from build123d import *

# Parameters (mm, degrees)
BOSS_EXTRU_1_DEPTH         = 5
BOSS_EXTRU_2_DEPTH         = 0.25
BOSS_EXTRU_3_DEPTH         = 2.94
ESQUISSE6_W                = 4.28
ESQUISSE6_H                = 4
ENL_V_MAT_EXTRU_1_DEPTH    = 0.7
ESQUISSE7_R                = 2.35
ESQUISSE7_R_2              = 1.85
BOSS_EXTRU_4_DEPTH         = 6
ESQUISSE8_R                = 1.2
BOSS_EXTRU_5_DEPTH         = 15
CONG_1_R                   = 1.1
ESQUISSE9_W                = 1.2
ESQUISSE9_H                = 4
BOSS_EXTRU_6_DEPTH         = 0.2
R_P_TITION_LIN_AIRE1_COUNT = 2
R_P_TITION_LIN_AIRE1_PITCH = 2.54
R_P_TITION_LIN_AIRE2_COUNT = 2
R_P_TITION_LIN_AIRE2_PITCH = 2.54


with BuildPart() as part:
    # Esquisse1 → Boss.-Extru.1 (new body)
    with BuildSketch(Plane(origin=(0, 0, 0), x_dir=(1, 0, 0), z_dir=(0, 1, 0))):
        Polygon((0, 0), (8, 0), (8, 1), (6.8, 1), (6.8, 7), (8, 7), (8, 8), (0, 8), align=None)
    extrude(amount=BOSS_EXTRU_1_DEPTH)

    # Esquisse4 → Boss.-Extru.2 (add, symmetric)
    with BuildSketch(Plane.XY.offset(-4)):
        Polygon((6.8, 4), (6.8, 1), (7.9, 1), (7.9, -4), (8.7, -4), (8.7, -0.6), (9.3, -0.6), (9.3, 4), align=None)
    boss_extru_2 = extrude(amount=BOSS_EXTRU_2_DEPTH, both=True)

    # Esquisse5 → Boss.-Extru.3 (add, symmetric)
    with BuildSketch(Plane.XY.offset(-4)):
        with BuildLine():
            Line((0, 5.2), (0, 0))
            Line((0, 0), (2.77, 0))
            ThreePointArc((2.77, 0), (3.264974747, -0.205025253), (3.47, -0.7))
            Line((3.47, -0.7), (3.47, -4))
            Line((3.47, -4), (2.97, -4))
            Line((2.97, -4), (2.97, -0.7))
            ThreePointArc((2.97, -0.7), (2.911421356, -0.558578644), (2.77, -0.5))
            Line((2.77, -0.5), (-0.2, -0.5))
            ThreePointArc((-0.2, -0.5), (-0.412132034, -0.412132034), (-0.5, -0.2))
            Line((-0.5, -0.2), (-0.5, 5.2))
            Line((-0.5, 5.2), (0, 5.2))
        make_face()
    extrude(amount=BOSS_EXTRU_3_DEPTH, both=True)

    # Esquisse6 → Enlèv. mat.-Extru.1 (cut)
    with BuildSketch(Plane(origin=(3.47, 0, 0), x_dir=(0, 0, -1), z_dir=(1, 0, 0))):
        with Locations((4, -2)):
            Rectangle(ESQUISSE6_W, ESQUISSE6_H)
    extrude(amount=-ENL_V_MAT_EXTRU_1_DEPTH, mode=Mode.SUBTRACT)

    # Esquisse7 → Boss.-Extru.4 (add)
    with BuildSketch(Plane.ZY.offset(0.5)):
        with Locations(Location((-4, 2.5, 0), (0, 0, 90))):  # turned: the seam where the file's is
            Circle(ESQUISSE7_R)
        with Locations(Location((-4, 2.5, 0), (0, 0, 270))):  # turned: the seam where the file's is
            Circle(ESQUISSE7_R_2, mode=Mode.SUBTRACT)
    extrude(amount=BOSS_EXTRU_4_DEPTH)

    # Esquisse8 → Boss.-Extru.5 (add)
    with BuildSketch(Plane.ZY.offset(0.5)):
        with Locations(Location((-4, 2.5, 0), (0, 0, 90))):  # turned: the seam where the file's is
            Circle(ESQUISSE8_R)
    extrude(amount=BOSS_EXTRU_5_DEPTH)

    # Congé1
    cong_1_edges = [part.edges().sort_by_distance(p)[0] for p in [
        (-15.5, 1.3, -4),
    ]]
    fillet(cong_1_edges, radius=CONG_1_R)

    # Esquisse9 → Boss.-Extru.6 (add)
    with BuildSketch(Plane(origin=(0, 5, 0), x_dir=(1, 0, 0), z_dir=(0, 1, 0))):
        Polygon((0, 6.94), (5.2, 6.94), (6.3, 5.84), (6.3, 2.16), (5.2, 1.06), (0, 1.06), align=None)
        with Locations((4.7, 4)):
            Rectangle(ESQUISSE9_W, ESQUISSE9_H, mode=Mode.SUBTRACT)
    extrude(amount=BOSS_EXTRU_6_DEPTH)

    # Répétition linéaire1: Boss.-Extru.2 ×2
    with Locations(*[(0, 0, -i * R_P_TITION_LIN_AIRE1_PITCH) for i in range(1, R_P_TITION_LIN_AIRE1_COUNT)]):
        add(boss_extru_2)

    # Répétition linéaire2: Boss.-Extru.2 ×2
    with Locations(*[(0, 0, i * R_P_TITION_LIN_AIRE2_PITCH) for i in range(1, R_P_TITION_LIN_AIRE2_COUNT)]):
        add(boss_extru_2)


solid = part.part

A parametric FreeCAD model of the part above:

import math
import FreeCAD as App
import Part
import Sketcher

V = App.Vector
Q = App.Units.Quantity


def edges_at(feature, points):
    """Names of the edges that pass closest to the given points."""
    edges = feature.Shape.Edges
    near = lambda p: min(range(len(edges)), key=lambda i: edges[i].distToShape(Part.Vertex(*p))[0])
    return sorted({f"Edge{near(p) + 1}" for p in points})

doc = App.newDocument("Part")
body = doc.addObject("PartDesign::Body", "Body")

# Sketch on XZ plane
sketch1 = doc.addObject("Sketcher::SketchObject", "Sketch")
body.addObject(sketch1)
sketch1.AttachmentSupport = (doc.XZ_Plane, [""])
sketch1.MapMode = "FlatFace"
sketch1.addGeometry([
    Part.LineSegment(V(0, 0, 0), V(8, 0, 0)),  # 0
    Part.LineSegment(V(8, 0, 0), V(8, -1, 0)),  # 1
    Part.LineSegment(V(8, -1, 0), V(6.8, -1, 0)),  # 2
    Part.LineSegment(V(6.8, -1, 0), V(6.8, -7, 0)),  # 3
    Part.LineSegment(V(6.8, -7, 0), V(8, -7, 0)),  # 4
    Part.LineSegment(V(8, -7, 0), V(8, -8, 0)),  # 5
    Part.LineSegment(V(8, -8, 0), V(0, -8, 0)),  # 6
    Part.LineSegment(V(0, -8, 0), V(0, 0, 0)),  # 7
], False)
sketch1.addConstraint([
    Sketcher.Constraint("Coincident", 0, 2, 1, 1),
    Sketcher.Constraint("Coincident", 1, 2, 2, 1),
    Sketcher.Constraint("Coincident", 2, 2, 3, 1),
    Sketcher.Constraint("Coincident", 3, 2, 4, 1),
    Sketcher.Constraint("Coincident", 4, 2, 5, 1),
    Sketcher.Constraint("Coincident", 5, 2, 6, 1),
    Sketcher.Constraint("Coincident", 6, 2, 7, 1),
    Sketcher.Constraint("Coincident", 7, 2, 0, 1),
    Sketcher.Constraint("Horizontal", 0),
    Sketcher.Constraint("Vertical", 1),
    Sketcher.Constraint("Horizontal", 2),
    Sketcher.Constraint("Vertical", 3),
    Sketcher.Constraint("Horizontal", 4),
    Sketcher.Constraint("Vertical", 5),
    Sketcher.Constraint("Horizontal", 6),
    Sketcher.Constraint("Vertical", 7),
    Sketcher.Constraint("Coincident", 7, 2, -1, 1),
    Sketcher.Constraint("Vertical", 1, 2, 4, 2),
    Sketcher.Constraint("Equal", 1, 5),
    Sketcher.Constraint("Equal", 6, 7),
    Sketcher.Constraint("DistanceX", 0, 1, 0, 2, Q("8 mm")),
    Sketcher.Constraint("DistanceY", 1, 2, 1, 1, Q("1 mm")),
    Sketcher.Constraint("DistanceX", 2, 2, 2, 1, Q("1.2 mm")),
])
pad1 = doc.addObject("PartDesign::Pad", "Pad")
body.addObject(pad1)
pad1.Profile = sketch1
pad1.Length = 5
pad1.Reversed = True

# Sketch on XY plane
sketch2 = doc.addObject("Sketcher::SketchObject", "Sketch001")
body.addObject(sketch2)
sketch2.AttachmentSupport = (doc.XY_Plane, [""])
sketch2.MapMode = "FlatFace"
sketch2.AttachmentOffset = App.Placement(V(0, 0, -4), App.Rotation())
sketch2.addGeometry([
    Part.LineSegment(V(6.8, 4, 0), V(6.8, 1, 0)),  # 0
    Part.LineSegment(V(6.8, 1, 0), V(7.9, 1, 0)),  # 1
    Part.LineSegment(V(7.9, 1, 0), V(7.9, -4, 0)),  # 2
    Part.LineSegment(V(7.9, -4, 0), V(8.7, -4, 0)),  # 3
    Part.LineSegment(V(8.7, -4, 0), V(8.7, -0.6, 0)),  # 4
    Part.LineSegment(V(8.7, -0.6, 0), V(9.3, -0.6, 0)),  # 5
    Part.LineSegment(V(9.3, -0.6, 0), V(9.3, 4, 0)),  # 6
    Part.LineSegment(V(9.3, 4, 0), V(6.8, 4, 0)),  # 7
], False)
sketch2.addConstraint([
    Sketcher.Constraint("Coincident", 0, 2, 1, 1),
    Sketcher.Constraint("Coincident", 1, 2, 2, 1),
    Sketcher.Constraint("Coincident", 2, 2, 3, 1),
    Sketcher.Constraint("Coincident", 3, 2, 4, 1),
    Sketcher.Constraint("Coincident", 4, 2, 5, 1),
    Sketcher.Constraint("Coincident", 5, 2, 6, 1),
    Sketcher.Constraint("Coincident", 6, 2, 7, 1),
    Sketcher.Constraint("Coincident", 7, 2, 0, 1),
    Sketcher.Constraint("Vertical", 0),
    Sketcher.Constraint("Horizontal", 1),
    Sketcher.Constraint("Vertical", 2),
    Sketcher.Constraint("Horizontal", 3),
    Sketcher.Constraint("Vertical", 4),
    Sketcher.Constraint("Horizontal", 5),
    Sketcher.Constraint("Vertical", 6),
    Sketcher.Constraint("Horizontal", 7),
    Sketcher.Constraint("DistanceY", 0, 2, 0, 1, Q("3 mm")),
    Sketcher.Constraint("DistanceY", 2, 2, 2, 1, Q("5 mm")),
    Sketcher.Constraint("DistanceX", 1, 1, 1, 2, Q("1.1 mm")),
    Sketcher.Constraint("DistanceX", 3, 1, 3, 2, Q("0.8 mm")),
    Sketcher.Constraint("DistanceX", 5, 1, 5, 2, Q("0.6 mm")),
    Sketcher.Constraint("DistanceY", 4, 1, 4, 2, Q("3.4 mm")),
    Sketcher.Constraint("DistanceY", -1, 1, 0, 2, Q("1 mm")),
    Sketcher.Constraint("DistanceX", -1, 1, 0, 2, Q("6.8 mm")),
])
pad2 = doc.addObject("PartDesign::Pad", "Pad001")
body.addObject(pad2)
pad2.Profile = sketch2
pad2.Length = 0.5
pad2.Midplane = True

# Sketch on XY plane
sketch3 = doc.addObject("Sketcher::SketchObject", "Sketch002")
body.addObject(sketch3)
sketch3.AttachmentSupport = (doc.XY_Plane, [""])
sketch3.MapMode = "FlatFace"
sketch3.AttachmentOffset = App.Placement(V(0, 0, -4), App.Rotation())
sketch3.addGeometry([
    Part.LineSegment(V(0, 0, 0), V(0, 5.2, 0)),  # 0
    Part.LineSegment(V(0, 5.2, 0), V(-0.5, 5.2, 0)),  # 1
    Part.LineSegment(V(-0.5, 5.2, 0), V(-0.5, -0.2, 0)),  # 2
    Part.ArcOfCircle(Part.Circle(V(-0.2, -0.2, 0), V(0, 0, 1), 0.3), math.radians(-180), math.radians(-90)),  # 3
    Part.LineSegment(V(-0.2, -0.5, 0), V(2.77, -0.5, 0)),  # 4
    Part.ArcOfCircle(Part.Circle(V(2.77, -0.7, 0), V(0, 0, 1), 0.2), math.radians(0), math.radians(90)),  # 5
    Part.LineSegment(V(2.97, -0.7, 0), V(2.97, -4, 0)),  # 6
    Part.LineSegment(V(2.97, -4, 0), V(3.47, -4, 0)),  # 7
    Part.LineSegment(V(3.47, -4, 0), V(3.47, -0.7, 0)),  # 8
    Part.ArcOfCircle(Part.Circle(V(2.77, -0.7, 0), V(0, 0, 1), 0.7), math.radians(0), math.radians(90)),  # 9
    Part.LineSegment(V(2.77, 0, 0), V(0, 0, 0)),  # 10
], False)
sketch3.addConstraint([
    Sketcher.Constraint("Coincident", 0, 2, 1, 1),
    Sketcher.Constraint("Coincident", 1, 2, 2, 1),
    Sketcher.Constraint("Tangent", 2, 2, 3, 1),
    Sketcher.Constraint("Tangent", 3, 2, 4, 1),
    Sketcher.Constraint("Tangent", 4, 2, 5, 2),
    Sketcher.Constraint("Tangent", 5, 1, 6, 1),
    Sketcher.Constraint("Coincident", 6, 2, 7, 1),
    Sketcher.Constraint("Coincident", 7, 2, 8, 1),
    Sketcher.Constraint("Tangent", 8, 2, 9, 1),
    Sketcher.Constraint("Tangent", 9, 2, 10, 1),
    Sketcher.Constraint("Coincident", 10, 2, 0, 1),
    Sketcher.Constraint("Vertical", 0),
    Sketcher.Constraint("Horizontal", 1),
    Sketcher.Constraint("Vertical", 2),
    Sketcher.Constraint("Horizontal", 4),
    Sketcher.Constraint("Vertical", 6),
    Sketcher.Constraint("Horizontal", 7),
    Sketcher.Constraint("Vertical", 8),
    Sketcher.Constraint("Horizontal", 10),
    Sketcher.Constraint("Coincident", 10, 2, -1, 1),
    Sketcher.Constraint("Coincident", 9, 3, 5, 3),
    Sketcher.Constraint("Equal", 1, 7),
    Sketcher.Constraint("Radius", 3, Q("0.3 mm")),
    Sketcher.Constraint("Radius", 5, Q("0.2 mm")),
    Sketcher.Constraint("Radius", 9, Q("0.7 mm")),
    Sketcher.Constraint("DistanceY", 0, 1, 0, 2, Q("5.2 mm")),
    Sketcher.Constraint("DistanceY", 6, 2, 6, 1, Q("3.3 mm")),
    Sketcher.Constraint("DistanceX", 4, 1, 4, 2, Q("2.97 mm")),
])
pad3 = doc.addObject("PartDesign::Pad", "Pad002")
body.addObject(pad3)
pad3.Profile = sketch3
pad3.Length = 5.88
pad3.Midplane = True

# Sketch on YZ plane
sketch4 = doc.addObject("Sketcher::SketchObject", "Sketch003")
body.addObject(sketch4)
sketch4.AttachmentSupport = (doc.YZ_Plane, [""])
sketch4.MapMode = "FlatFace"
sketch4.AttachmentOffset = App.Placement(V(0, 0, 3.47), App.Rotation())
sketch4.addGeometry([
    Part.LineSegment(V(0, -1.86, 0), V(-4, -1.86, 0)),
    Part.LineSegment(V(-4, -1.86, 0), V(-4, -6.14, 0)),
    Part.LineSegment(V(-4, -6.14, 0), V(0, -6.14, 0)),
    Part.LineSegment(V(0, -6.14, 0), V(0, -1.86, 0)),
], False)
sketch4.addConstraint([
    Sketcher.Constraint("Coincident", 0, 2, 1, 1),
    Sketcher.Constraint("Coincident", 1, 2, 2, 1),
    Sketcher.Constraint("Coincident", 2, 2, 3, 1),
    Sketcher.Constraint("Coincident", 3, 2, 0, 1),
    Sketcher.Constraint("Horizontal", 0),
    Sketcher.Constraint("Vertical", 1),
    Sketcher.Constraint("Horizontal", 2),
    Sketcher.Constraint("Vertical", 3),
    Sketcher.Constraint("PointOnObject", 2, 2, -2),
    Sketcher.Constraint("DistanceX", 0, 2, 0, 1, Q("4 mm")),
    Sketcher.Constraint("DistanceY", 1, 2, 1, 1, Q("4.28 mm")),
    Sketcher.Constraint("DistanceY", 0, 2, -1, 1, Q("1.86 mm")),
])
pocket1 = doc.addObject("PartDesign::Pocket", "Pocket")
body.addObject(pocket1)
pocket1.Profile = sketch4
pocket1.Length = 0.7

# Sketch on YZ plane
sketch5 = doc.addObject("Sketcher::SketchObject", "Sketch004")
body.addObject(sketch5)
sketch5.AttachmentSupport = (doc.YZ_Plane, [""])
sketch5.MapMode = "FlatFace"
sketch5.AttachmentOffset = App.Placement(V(0, 0, -0.5), App.Rotation())
sketch5.addGeometry([
    Part.Circle(V(2.5, -4, 0), V(0, 0, 1), 2.35),
    Part.Circle(V(2.5, -4, 0), V(0, 0, 1), 1.85),
], False)
sketch5.addConstraint([
    Sketcher.Constraint("Coincident", 1, 3, 0, 3),
    Sketcher.Constraint("Diameter", 0, Q("4.7 mm")),
    Sketcher.Constraint("Diameter", 1, Q("3.7 mm")),
    Sketcher.Constraint("DistanceY", 0, 3, -1, 1, Q("4 mm")),
    Sketcher.Constraint("DistanceX", -1, 1, 0, 3, Q("2.5 mm")),
])
pad4 = doc.addObject("PartDesign::Pad", "Pad003")
body.addObject(pad4)
pad4.Profile = sketch5
pad4.Length = 6
pad4.Reversed = True

# Sketch on YZ plane
sketch6 = doc.addObject("Sketcher::SketchObject", "Sketch005")
body.addObject(sketch6)
sketch6.AttachmentSupport = (doc.YZ_Plane, [""])
sketch6.MapMode = "FlatFace"
sketch6.AttachmentOffset = App.Placement(V(0, 0, -0.5), App.Rotation())
sketch6.addGeometry(Part.Circle(V(2.5, -4, 0), V(0, 0, 1), 1.2), False)
sketch6.addConstraint([
    Sketcher.Constraint("Diameter", 0, Q("2.4 mm")),
    Sketcher.Constraint("DistanceY", 0, 3, -1, 1, Q("4 mm")),
    Sketcher.Constraint("DistanceX", -1, 1, 0, 3, Q("2.5 mm")),
])
pad5 = doc.addObject("PartDesign::Pad", "Pad004")
body.addObject(pad5)
pad5.Profile = sketch6
pad5.Length = 15
pad5.Reversed = True
doc.recompute()

fillet = doc.addObject("PartDesign::Fillet", "Fillet")
body.addObject(fillet)
fillet.Base = (pad5, edges_at(pad5, [(-15.5, 1.3, -4)]))
fillet.Radius = 1.1

# Sketch on XZ plane
sketch7 = doc.addObject("Sketcher::SketchObject", "Sketch006")
body.addObject(sketch7)
sketch7.AttachmentSupport = (doc.XZ_Plane, [""])
sketch7.MapMode = "FlatFace"
sketch7.AttachmentOffset = App.Placement(V(0, 0, -5), App.Rotation())
sketch7.addGeometry([
    Part.LineSegment(V(5.2, -6.94, 0), V(0, -6.94, 0)),  # 0
    Part.LineSegment(V(0, -6.94, 0), V(0, -1.06, 0)),  # 1
    Part.LineSegment(V(0, -1.06, 0), V(5.2, -1.06, 0)),  # 2
    Part.LineSegment(V(5.2, -1.06, 0), V(6.3, -2.16, 0)),  # 3
    Part.LineSegment(V(6.3, -2.16, 0), V(6.3, -5.84, 0)),  # 4
    Part.LineSegment(V(6.3, -5.84, 0), V(5.2, -6.94, 0)),  # 5
    Part.LineSegment(V(4.1, -2, 0), V(4.1, -6, 0)),  # 6
    Part.LineSegment(V(4.1, -6, 0), V(5.3, -6, 0)),  # 7
    Part.LineSegment(V(5.3, -6, 0), V(5.3, -2, 0)),  # 8
    Part.LineSegment(V(5.3, -2, 0), V(4.1, -2, 0)),  # 9
], False)
sketch7.addConstraint([
    Sketcher.Constraint("Coincident", 0, 2, 1, 1),
    Sketcher.Constraint("Coincident", 1, 2, 2, 1),
    Sketcher.Constraint("Coincident", 2, 2, 3, 1),
    Sketcher.Constraint("Coincident", 3, 2, 4, 1),
    Sketcher.Constraint("Coincident", 4, 2, 5, 1),
    Sketcher.Constraint("Coincident", 5, 2, 0, 1),
    Sketcher.Constraint("Coincident", 6, 2, 7, 1),
    Sketcher.Constraint("Coincident", 7, 2, 8, 1),
    Sketcher.Constraint("Coincident", 8, 2, 9, 1),
    Sketcher.Constraint("Coincident", 9, 2, 6, 1),
    Sketcher.Constraint("Horizontal", 0),
    Sketcher.Constraint("Vertical", 1),
    Sketcher.Constraint("Horizontal", 2),
    Sketcher.Constraint("Vertical", 4),
    Sketcher.Constraint("Vertical", 6),
    Sketcher.Constraint("Horizontal", 7),
    Sketcher.Constraint("Vertical", 8),
    Sketcher.Constraint("Horizontal", 9),
    Sketcher.Constraint("PointOnObject", 0, 2, -2),
    Sketcher.Constraint("Perpendicular", 3, 5),
    Sketcher.Constraint("Vertical", 2, 2, 5, 2),
    Sketcher.Constraint("Equal", 3, 5),
    Sketcher.Constraint("DistanceY", 6, 2, 6, 1, Q("4 mm")),
    Sketcher.Constraint("DistanceX", 0, 2, 0, 1, Q("5.2 mm")),
    Sketcher.Constraint("DistanceX", 7, 1, 7, 2, Q("1.2 mm")),
    Sketcher.Constraint("DistanceY", 6, 2, -1, 1, Q("6 mm")),
    Sketcher.Constraint("DistanceX", 7, 2, 4, 2, Q("1 mm")),
    Sketcher.Constraint("DistanceY", 1, 1, 1, 2, Q("5.88 mm")),
    Sketcher.Constraint("DistanceY", 4, 2, 4, 1, Q("3.68 mm")),
    Sketcher.Constraint("DistanceY", 0, 2, -1, 1, Q("6.94 mm")),
])
pad6 = doc.addObject("PartDesign::Pad", "Pad005")
body.addObject(pad6)
pad6.Profile = sketch7
pad6.Length = 0.2
pad6.Reversed = True
doc.recompute()

linearpattern = doc.addObject("PartDesign::LinearPattern", "LinearPattern")
body.addObject(linearpattern)
linearpattern.Originals = [pad2]
linearpattern.Direction = (doc.Z_Axis, [""])
linearpattern.Mode = "offset"
linearpattern.Offset = 2.54
linearpattern.Occurrences = 2
linearpattern.Reversed = True
body.Tip = linearpattern
doc.recompute()

linearpattern2 = doc.addObject("PartDesign::LinearPattern", "LinearPattern001")
body.addObject(linearpattern2)
linearpattern2.Originals = [pad2]
linearpattern2.Direction = (doc.Z_Axis, [""])
linearpattern2.Mode = "offset"
linearpattern2.Offset = 2.54
linearpattern2.Occurrences = 2
body.Tip = linearpattern2

doc.recompute()
